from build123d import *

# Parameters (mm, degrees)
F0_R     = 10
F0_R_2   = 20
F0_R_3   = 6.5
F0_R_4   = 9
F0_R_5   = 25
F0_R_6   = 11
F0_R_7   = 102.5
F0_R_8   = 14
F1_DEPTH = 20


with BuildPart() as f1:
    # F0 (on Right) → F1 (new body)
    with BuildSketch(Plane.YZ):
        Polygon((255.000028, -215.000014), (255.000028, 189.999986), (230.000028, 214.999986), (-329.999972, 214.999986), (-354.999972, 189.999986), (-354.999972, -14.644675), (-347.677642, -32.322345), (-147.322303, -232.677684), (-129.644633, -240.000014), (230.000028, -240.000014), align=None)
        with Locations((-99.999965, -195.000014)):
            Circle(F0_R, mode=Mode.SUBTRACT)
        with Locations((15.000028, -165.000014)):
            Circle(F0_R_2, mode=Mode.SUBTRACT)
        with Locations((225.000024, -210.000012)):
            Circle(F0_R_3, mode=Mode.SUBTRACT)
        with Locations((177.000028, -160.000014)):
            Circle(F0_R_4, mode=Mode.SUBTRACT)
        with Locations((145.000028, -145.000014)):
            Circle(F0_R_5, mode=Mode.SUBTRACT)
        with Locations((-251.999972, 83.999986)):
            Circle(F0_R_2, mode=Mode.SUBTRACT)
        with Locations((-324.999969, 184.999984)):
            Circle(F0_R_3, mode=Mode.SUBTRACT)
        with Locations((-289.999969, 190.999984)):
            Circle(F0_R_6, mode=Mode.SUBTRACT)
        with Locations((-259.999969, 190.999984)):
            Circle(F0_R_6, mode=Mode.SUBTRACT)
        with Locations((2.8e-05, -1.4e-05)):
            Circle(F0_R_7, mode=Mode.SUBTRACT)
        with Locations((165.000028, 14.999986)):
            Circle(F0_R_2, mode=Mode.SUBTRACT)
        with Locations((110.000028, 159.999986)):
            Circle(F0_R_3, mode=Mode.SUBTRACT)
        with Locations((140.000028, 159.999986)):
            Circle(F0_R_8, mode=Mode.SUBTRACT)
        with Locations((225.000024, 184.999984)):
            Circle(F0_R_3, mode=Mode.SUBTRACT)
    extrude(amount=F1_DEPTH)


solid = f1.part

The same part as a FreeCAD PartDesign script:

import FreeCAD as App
import Part
import Sketcher
from FreeCAD import Vector
Q = App.Units.Quantity

doc = App.newDocument("Part")
body = doc.addObject("PartDesign::Body", "Body")

# Sketch on YZ plane
sketch1 = body.newObject("Sketcher::SketchObject", "Sketch")
sketch1.AttachmentSupport = (doc.getObject("YZ_Plane"), [""])
sketch1.MapMode = "FlatFace"
sketch1.addGeometry(Part.LineSegment(Vector(255.000028, -215.000014, 0), Vector(255.000028, 189.999986, 0)), False)
sketch1.addGeometry(Part.LineSegment(Vector(255.000028, 189.999986, 0), Vector(230.000028, 214.999986, 0)), False)
sketch1.addGeometry(Part.LineSegment(Vector(230.000028, 214.999986, 0), Vector(-329.999972, 214.999986, 0)), False)
sketch1.addGeometry(Part.LineSegment(Vector(-329.999972, 214.999986, 0), Vector(-354.999972, 189.999986, 0)), False)
sketch1.addGeometry(Part.LineSegment(Vector(-354.999972, 189.999986, 0), Vector(-354.999972, -14.644675, 0)), False)
sketch1.addGeometry(Part.LineSegment(Vector(-354.999972, -14.644675, 0), Vector(-347.677642, -32.322345, 0)), False)
sketch1.addGeometry(Part.LineSegment(Vector(-347.677642, -32.322345, 0), Vector(-147.322303, -232.677684, 0)), False)
sketch1.addGeometry(Part.LineSegment(Vector(-147.322303, -232.677684, 0), Vector(-129.644633, -240.000014, 0)), False)
sketch1.addGeometry(Part.LineSegment(Vector(-129.644633, -240.000014, 0), Vector(230.000028, -240.000014, 0)), False)
sketch1.addGeometry(Part.LineSegment(Vector(230.000028, -240.000014, 0), Vector(255.000028, -215.000014, 0)), False)
sketch1.addGeometry(Part.Circle(Vector(-99.999965, -195.000014, 0), Vector(0, 0, 1), 10), False)
sketch1.addGeometry(Part.Circle(Vector(15.000028, -165.000014, 0), Vector(0, 0, 1), 20), False)
sketch1.addGeometry(Part.Circle(Vector(225.000024, -210.000012, 0), Vector(0, 0, 1), 6.5), False)
sketch1.addGeometry(Part.Circle(Vector(145.000028, -145.000014, 0), Vector(0, 0, 1), 25), False)
sketch1.addGeometry(Part.Circle(Vector(177.000028, -160.000014, 0), Vector(0, 0, 1), 9), False)
sketch1.addGeometry(Part.Circle(Vector(-251.999972, 83.999986, 0), Vector(0, 0, 1), 20), False)
sketch1.addGeometry(Part.Circle(Vector(-324.999969, 184.999984, 0), Vector(0, 0, 1), 6.5), False)
sketch1.addGeometry(Part.Circle(Vector(-289.999969, 190.999984, 0), Vector(0, 0, 1), 11), False)
sketch1.addGeometry(Part.Circle(Vector(-259.999969, 190.999984, 0), Vector(0, 0, 1), 11), False)
sketch1.addGeometry(Part.Circle(Vector(0.000028, -0.000014, 0), Vector(0, 0, 1), 102.5), False)
sketch1.addGeometry(Part.Circle(Vector(165.000028, 14.999986, 0), Vector(0, 0, 1), 20), False)
sketch1.addGeometry(Part.Circle(Vector(110.000028, 159.999986, 0), Vector(0, 0, 1), 6.5), False)
sketch1.addGeometry(Part.Circle(Vector(140.000028, 159.999986, 0), Vector(0, 0, 1), 14), False)
sketch1.addGeometry(Part.Circle(Vector(225.000024, 184.999984, 0), Vector(0, 0, 1), 6.5), False)
sketch1.addConstraint(Sketcher.Constraint("Coincident", 0, 2, 1, 1))
sketch1.addConstraint(Sketcher.Constraint("Coincident", 1, 2, 2, 1))
sketch1.addConstraint(Sketcher.Constraint("Coincident", 2, 2, 3, 1))
sketch1.addConstraint(Sketcher.Constraint("Coincident", 3, 2, 4, 1))
sketch1.addConstraint(Sketcher.Constraint("Coincident", 4, 2, 5, 1))
sketch1.addConstraint(Sketcher.Constraint("Coincident", 5, 2, 6, 1))
sketch1.addConstraint(Sketcher.Constraint("Coincident", 6, 2, 7, 1))
sketch1.addConstraint(Sketcher.Constraint("Coincident", 7, 2, 8, 1))
sketch1.addConstraint(Sketcher.Constraint("Coincident", 8, 2, 9, 1))
sketch1.addConstraint(Sketcher.Constraint("Coincident", 9, 2, 0, 1))
sketch1.addConstraint(Sketcher.Constraint("Vertical", 0))
sketch1.addConstraint(Sketcher.Constraint("Horizontal", 2))
sketch1.addConstraint(Sketcher.Constraint("Vertical", 4))
sketch1.addConstraint(Sketcher.Constraint("Horizontal", 8))
sketch1.addConstraint(Sketcher.Constraint("Equal", 11, 15))
sketch1.addConstraint(Sketcher.Constraint("Equal", 12, 16))
sketch1.addConstraint(Sketcher.Constraint("Equal", 17, 18))
sketch1.addConstraint(Sketcher.Constraint("Equal", 15, 20))
sketch1.addConstraint(Sketcher.Constraint("Equal", 16, 21))
sketch1.addConstraint(Sketcher.Constraint("Equal", 21, 23))
sketch1.addConstraint(Sketcher.Constraint("Perpendicular", 1, 3))
sketch1.addConstraint(Sketcher.Constraint("Perpendicular", 3, 6))
sketch1.addConstraint(Sketcher.Constraint("Perpendicular", 6, 9))
sketch1.addConstraint(Sketcher.Constraint("Horizontal", 17, 3, 18, 3))
sketch1.addConstraint(Sketcher.Constraint("Horizontal", 21, 3, 22, 3))
sketch1.addConstraint(Sketcher.Constraint("Horizontal", 16, 3, 23, 3))
sketch1.addConstraint(Sketcher.Constraint("Horizontal", 0, 2, 3, 2))
sketch1.addConstraint(Sketcher.Constraint("Vertical", 12, 3, 23, 3))
sketch1.addConstraint(Sketcher.Constraint("Vertical", 1, 2, 8, 2))
sketch1.addConstraint(Sketcher.Constraint("Equal", 1, 3))
sketch1.addConstraint(Sketcher.Constraint("Equal", 5, 7))
sketch1.addConstraint(Sketcher.Constraint("Diameter", 10, Q("20 mm")))
sketch1.addConstraint(Sketcher.Constraint("Diameter", 11, Q("40 mm")))
sketch1.addConstraint(Sketcher.Constraint("Diameter", 12, Q("13 mm")))
sketch1.addConstraint(Sketcher.Constraint("Diameter", 13, Q("50 mm")))
sketch1.addConstraint(Sketcher.Constraint("Diameter", 14, Q("18 mm")))
sketch1.addConstraint(Sketcher.Constraint("Diameter", 17, Q("22 mm")))
sketch1.addConstraint(Sketcher.Constraint("Diameter", 19, Q("205 mm")))
sketch1.addConstraint(Sketcher.Constraint("Diameter", 22, Q("28 mm")))
sketch1.addConstraint(Sketcher.Constraint("DistanceX", 2, 2, 2, 1, Q("560 mm")))
sketch1.addConstraint(Sketcher.Constraint("DistanceY", 0, 1, 0, 2, Q("405 mm")))
sketch1.addConstraint(Sketcher.Constraint("Angle", 5, Q("-67.500002 deg")))
sketch1.addConstraint(Sketcher.Constraint("Angle", 7, Q("-22.499998 deg")))
sketch1.addConstraint(Sketcher.Constraint("DistanceY", 10, 3, 11, 3, Q("30 mm")))
sketch1.addConstraint(Sketcher.Constraint("DistanceY", 12, 3, 11, 3, Q("44.999998 mm")))
sketch1.addConstraint(Sketcher.Constraint("DistanceY", 12, 3, 13, 3, Q("64.999998 mm")))
sketch1.addConstraint(Sketcher.Constraint("DistanceX", 11, 3, 13, 3, Q("130 mm")))
sketch1.addConstraint(Sketcher.Constraint("DistanceX", 13, 3, 14, 3, Q("32 mm")))
sketch1.addConstraint(Sketcher.Constraint("DistanceY", 14, 3, 13, 3, Q("15 mm")))
sketch1.addConstraint(Sketcher.Constraint("DistanceY", 10, 3, 15, 3, Q("279 mm")))
sketch1.addConstraint(Sketcher.Constraint("DistanceX", 15, 3, 11, 3, Q("267 mm")))
sketch1.addConstraint(Sketcher.Constraint("DistanceY", 15, 3, 16, 3, Q("100.999998 mm")))
sketch1.addConstraint(Sketcher.Constraint("DistanceX", 16, 3, 17, 3, Q("35 mm")))
sketch1.addConstraint(Sketcher.Constraint("DistanceY", 16, 3, 17, 3, Q("6 mm")))
sketch1.addConstraint(Sketcher.Constraint("DistanceX", 17, 3, 18, 3, Q("30 mm")))
sketch1.addConstraint(Sketcher.Constraint("DistanceX", 19, 3, 11, 3, Q("15 mm")))
sketch1.addConstraint(Sketcher.Constraint("DistanceY", 11, 3, 19, 3, Q("165 mm")))
sketch1.addConstraint(Sketcher.Constraint("DistanceX", 13, 3, 20, 3, Q("20 mm")))
sketch1.addConstraint(Sketcher.Constraint("DistanceY", 13, 3, 20, 3, Q("160 mm")))
sketch1.addConstraint(Sketcher.Constraint("DistanceX", 21, 3, 20, 3, Q("55 mm")))
sketch1.addConstraint(Sketcher.Constraint("DistanceY", 20, 3, 21, 3, Q("145 mm")))
sketch1.addConstraint(Sketcher.Constraint("DistanceX", 21, 3, 22, 3, Q("30 mm")))
sketch1.addConstraint(Sketcher.Constraint("DistanceY", 23, 3, 0, 2, Q("5.000002 mm")))
sketch1.addConstraint(Sketcher.Constraint("DistanceX", 22, 3, 0, 2, Q("115 mm")))
sketch1.addConstraint(Sketcher.Constraint("DistanceY", 23, 3, 1, 2, Q("30.000002 mm")))
sketch1.addConstraint(Sketcher.Constraint("DistanceX", 8, 1, 8, 2, Q("359.644661 mm")))
sketch1.addConstraint(Sketcher.Constraint("Distance", 5, Q("19.134172 mm")))
sketch1.addConstraint(Sketcher.Constraint("DistanceY", 12, 3, -1, 1, Q("210.000012 mm")))
sketch1.addConstraint(Sketcher.Constraint("DistanceX", 16, 3, -1, 1, Q("324.999969 mm")))
sketch1.addConstraint(Sketcher.Constraint("DistanceX", -1, 1, 21, 3, Q("110.000028 mm")))
sketch1.addConstraint(Sketcher.Constraint("DistanceX", 10, 3, 12, 3, Q("324.999989 mm")))
sketch1.addConstraint(Sketcher.Constraint("DistanceX", 6, 2, 10, 3, Q("47.322338 mm")))
pad1 = body.newObject("PartDesign::Pad", "Pad")
pad1.Profile = sketch1
pad1.Length = 20

doc.recompute()
